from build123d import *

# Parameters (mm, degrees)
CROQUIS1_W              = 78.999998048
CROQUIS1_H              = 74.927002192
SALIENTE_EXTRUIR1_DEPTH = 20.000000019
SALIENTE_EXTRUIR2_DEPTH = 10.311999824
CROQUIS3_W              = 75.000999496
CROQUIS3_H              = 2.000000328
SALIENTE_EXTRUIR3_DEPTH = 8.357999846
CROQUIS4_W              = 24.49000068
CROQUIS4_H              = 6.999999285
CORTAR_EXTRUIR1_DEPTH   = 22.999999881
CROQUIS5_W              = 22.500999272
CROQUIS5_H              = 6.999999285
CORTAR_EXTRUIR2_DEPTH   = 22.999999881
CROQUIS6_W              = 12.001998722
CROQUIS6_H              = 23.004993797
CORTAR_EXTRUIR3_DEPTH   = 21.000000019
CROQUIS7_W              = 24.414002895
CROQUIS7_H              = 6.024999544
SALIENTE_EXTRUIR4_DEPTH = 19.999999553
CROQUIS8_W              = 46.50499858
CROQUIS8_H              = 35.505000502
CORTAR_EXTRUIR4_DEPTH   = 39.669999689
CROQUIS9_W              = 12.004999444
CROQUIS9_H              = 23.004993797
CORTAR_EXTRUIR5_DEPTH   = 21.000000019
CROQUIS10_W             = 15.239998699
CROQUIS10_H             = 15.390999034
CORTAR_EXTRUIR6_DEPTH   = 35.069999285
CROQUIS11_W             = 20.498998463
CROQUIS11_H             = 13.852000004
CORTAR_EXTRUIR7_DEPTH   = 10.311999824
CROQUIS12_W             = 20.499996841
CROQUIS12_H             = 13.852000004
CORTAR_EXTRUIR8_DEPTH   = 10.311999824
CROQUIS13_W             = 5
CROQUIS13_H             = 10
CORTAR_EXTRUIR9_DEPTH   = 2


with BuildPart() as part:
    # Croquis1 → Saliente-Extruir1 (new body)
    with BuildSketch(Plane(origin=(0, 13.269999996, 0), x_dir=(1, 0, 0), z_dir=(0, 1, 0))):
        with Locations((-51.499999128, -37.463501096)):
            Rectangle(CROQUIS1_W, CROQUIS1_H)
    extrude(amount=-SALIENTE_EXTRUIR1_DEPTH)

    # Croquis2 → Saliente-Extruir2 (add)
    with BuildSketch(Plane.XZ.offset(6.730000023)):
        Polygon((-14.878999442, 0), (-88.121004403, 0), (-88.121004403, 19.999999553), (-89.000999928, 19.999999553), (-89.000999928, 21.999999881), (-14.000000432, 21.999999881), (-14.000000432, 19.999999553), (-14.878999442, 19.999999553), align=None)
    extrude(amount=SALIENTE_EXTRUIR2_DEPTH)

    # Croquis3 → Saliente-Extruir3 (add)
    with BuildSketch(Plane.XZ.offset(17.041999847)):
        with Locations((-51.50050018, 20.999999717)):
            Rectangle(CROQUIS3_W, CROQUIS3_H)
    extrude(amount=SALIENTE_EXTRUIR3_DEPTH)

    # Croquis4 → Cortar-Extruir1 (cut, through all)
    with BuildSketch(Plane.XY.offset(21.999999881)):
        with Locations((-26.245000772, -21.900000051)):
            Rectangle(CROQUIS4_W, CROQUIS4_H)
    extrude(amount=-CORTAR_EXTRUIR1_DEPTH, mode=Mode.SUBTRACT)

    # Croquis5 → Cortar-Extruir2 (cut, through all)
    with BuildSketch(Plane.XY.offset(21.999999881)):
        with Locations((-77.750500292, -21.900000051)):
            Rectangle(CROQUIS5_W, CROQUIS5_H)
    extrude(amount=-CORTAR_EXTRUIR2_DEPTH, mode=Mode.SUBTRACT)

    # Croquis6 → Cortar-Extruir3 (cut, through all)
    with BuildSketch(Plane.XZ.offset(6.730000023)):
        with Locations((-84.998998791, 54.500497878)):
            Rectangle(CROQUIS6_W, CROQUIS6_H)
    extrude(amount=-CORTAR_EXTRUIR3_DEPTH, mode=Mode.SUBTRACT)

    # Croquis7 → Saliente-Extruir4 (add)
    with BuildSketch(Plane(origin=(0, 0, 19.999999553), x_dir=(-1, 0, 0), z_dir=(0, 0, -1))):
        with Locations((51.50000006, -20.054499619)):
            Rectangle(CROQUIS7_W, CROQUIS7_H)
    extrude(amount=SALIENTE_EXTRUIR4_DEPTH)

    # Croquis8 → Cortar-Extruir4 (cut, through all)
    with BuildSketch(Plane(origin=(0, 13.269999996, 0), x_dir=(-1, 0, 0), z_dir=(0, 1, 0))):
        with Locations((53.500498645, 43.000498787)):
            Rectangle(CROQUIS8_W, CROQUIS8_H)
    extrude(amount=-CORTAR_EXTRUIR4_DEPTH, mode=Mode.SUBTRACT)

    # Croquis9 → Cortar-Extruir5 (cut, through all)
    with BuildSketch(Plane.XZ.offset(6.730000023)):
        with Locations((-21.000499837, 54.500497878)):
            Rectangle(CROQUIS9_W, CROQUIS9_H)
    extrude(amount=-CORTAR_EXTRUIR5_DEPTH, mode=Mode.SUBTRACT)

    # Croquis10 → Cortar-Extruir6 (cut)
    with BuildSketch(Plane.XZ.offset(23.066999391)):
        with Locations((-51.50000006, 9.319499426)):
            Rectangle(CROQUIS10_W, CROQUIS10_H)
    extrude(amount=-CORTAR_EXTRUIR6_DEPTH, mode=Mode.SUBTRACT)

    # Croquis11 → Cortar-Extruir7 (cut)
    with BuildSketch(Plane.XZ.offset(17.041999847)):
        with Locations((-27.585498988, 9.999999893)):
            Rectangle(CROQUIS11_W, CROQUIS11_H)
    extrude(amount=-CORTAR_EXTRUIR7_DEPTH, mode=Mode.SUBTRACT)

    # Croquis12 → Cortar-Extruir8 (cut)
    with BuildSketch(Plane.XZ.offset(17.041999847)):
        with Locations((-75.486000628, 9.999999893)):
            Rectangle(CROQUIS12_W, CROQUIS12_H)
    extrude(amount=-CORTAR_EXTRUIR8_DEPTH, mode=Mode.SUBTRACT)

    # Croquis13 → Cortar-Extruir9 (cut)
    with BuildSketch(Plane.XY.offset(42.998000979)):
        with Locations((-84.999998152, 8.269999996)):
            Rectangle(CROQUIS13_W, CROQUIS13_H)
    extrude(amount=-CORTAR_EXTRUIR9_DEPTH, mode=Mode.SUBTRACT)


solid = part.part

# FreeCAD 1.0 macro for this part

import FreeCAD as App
import Part
import Sketcher

V = App.Vector


def add_polygon(sketch, points):
    """Adds a closed chain of lines whose ends are joined by coincident constraints."""
    first, n = sketch.GeometryCount, len(points)
    for a, b in zip(points, points[1:] + points[:1]):
        sketch.addGeometry(Part.LineSegment(App.Vector(*a, 0), App.Vector(*b, 0)), False)
    for i in range(n):
        sketch.addConstraint(Sketcher.Constraint("Coincident", first + i, 2, first + (i + 1) % n, 1))

doc = App.newDocument("Part")
body = doc.addObject("PartDesign::Body", "Body")

# Sketch on XZ plane
sketch1 = doc.addObject("Sketcher::SketchObject", "Sketch")
body.addObject(sketch1)
sketch1.AttachmentSupport = (doc.XZ_Plane, [""])
sketch1.MapMode = "FlatFace"
sketch1.AttachmentOffset = App.Placement(V(0, 0, -13.27), App.Rotation())
add_polygon(sketch1, [(-91, 0), (-91, 75), (-12, 75), (-12, 0)])  # lines 0-3
sketch1.addConstraint([
    Sketcher.Constraint("Vertical", 0),
    Sketcher.Constraint("Horizontal", 1),
    Sketcher.Constraint("Vertical", 2),
    Sketcher.Constraint("Horizontal", 3),
    Sketcher.Constraint("PointOnObject", 2, 2, -1),
    Sketcher.Constraint("DistanceX", 1, 1, 1, 2, 78.999998),
    Sketcher.Constraint("DistanceX", 0, 2, -1, 1, 90.999998),
    Sketcher.Constraint("DistanceY", 0, 1, 0, 2, 74.927002),
])
pad1 = doc.addObject("PartDesign::Pad", "Pad")
body.addObject(pad1)
pad1.Profile = sketch1
pad1.Length = 20

# Sketch on XZ plane
sketch2 = doc.addObject("Sketcher::SketchObject", "Sketch001")
body.addObject(sketch2)
sketch2.AttachmentSupport = (doc.XZ_Plane, [""])
sketch2.MapMode = "FlatFace"
sketch2.AttachmentOffset = App.Placement(V(0, 0, 6.73), App.Rotation())
add_polygon(sketch2, [(-88.1, 0), (-14.9, 0), (-14.9, 20), (-14, 20), (-14, 22), (-89, 22), (-89, 20), (-88.1, 20)])  # lines 0-7
sketch2.addConstraint([
    Sketcher.Constraint("Horizontal", 0),
    Sketcher.Constraint("Vertical", 1),
    Sketcher.Constraint("Horizontal", 2),
    Sketcher.Constraint("Vertical", 3),
    Sketcher.Constraint("Horizontal", 4),
    Sketcher.Constraint("Vertical", 5),
    Sketcher.Constraint("Horizontal", 6),
    Sketcher.Constraint("Vertical", 7),
    Sketcher.Constraint("PointOnObject", 0, 2, -1),
    Sketcher.Constraint("Horizontal", 2, 2, 5, 2),
    Sketcher.Constraint("DistanceY", 1, 1, 1, 2, 20.0),
    Sketcher.Constraint("DistanceY", 3, 1, 3, 2, 2.0),
    Sketcher.Constraint("DistanceX", 2, 2, -1, 1, 14.0),
    Sketcher.Constraint("DistanceX", 2, 1, 2, 2, 0.878999),
    Sketcher.Constraint("DistanceX", 4, 2, 4, 1, 75.000999),
    Sketcher.Constraint("DistanceX", 0, 1, 0, 2, 73.242005),
])
pad2 = doc.addObject("PartDesign::Pad", "Pad001")
body.addObject(pad2)
pad2.Profile = sketch2
pad2.Length = 10.312

# Sketch on XZ plane
sketch3 = doc.addObject("Sketcher::SketchObject", "Sketch002")
body.addObject(sketch3)
sketch3.AttachmentSupport = (doc.XZ_Plane, [""])
sketch3.MapMode = "FlatFace"
sketch3.AttachmentOffset = App.Placement(V(0, 0, 17.042), App.Rotation())
add_polygon(sketch3, [(-89, 22), (-89, 20), (-14, 20), (-14, 22)])  # lines 0-3
sketch3.addConstraint([
    Sketcher.Constraint("Vertical", 0),
    Sketcher.Constraint("Horizontal", 1),
    Sketcher.Constraint("Vertical", 2),
    Sketcher.Constraint("Horizontal", 3),
    Sketcher.Constraint("DistanceY", 0, 2, 0, 1, 2.0),
    Sketcher.Constraint("DistanceY", -1, 1, 0, 2, 20.0),
    Sketcher.Constraint("DistanceX", 1, 2, -1, 1, 14.0),
    Sketcher.Constraint("DistanceX", 1, 1, 1, 2, 75.000999),
])
pad3 = doc.addObject("PartDesign::Pad", "Pad002")
body.addObject(pad3)
pad3.Profile = sketch3
pad3.Length = 8.358

# Sketch on XY plane
sketch4 = doc.addObject("Sketcher::SketchObject", "Sketch003")
body.addObject(sketch4)
sketch4.AttachmentSupport = (doc.XY_Plane, [""])
sketch4.MapMode = "FlatFace"
sketch4.AttachmentOffset = App.Placement(V(0, 0, 22), App.Rotation())
add_polygon(sketch4, [(-38, -18), (-38, -25), (-14, -25), (-14, -18)])  # lines 0-3
sketch4.addConstraint([
    Sketcher.Constraint("Vertical", 0),
    Sketcher.Constraint("Horizontal", 1),
    Sketcher.Constraint("Vertical", 2),
    Sketcher.Constraint("Horizontal", 3),
    Sketcher.Constraint("DistanceY", 0, 2, 0, 1, 6.999999),
    Sketcher.Constraint("DistanceX", 1, 2, -1, 1, 14.0),
    Sketcher.Constraint("DistanceX", 1, 1, 1, 2, 24.490001),
    Sketcher.Constraint("DistanceY", 0, 2, -1, 1, 25.4),
])
pocket1 = doc.addObject("PartDesign::Pocket", "Pocket")
body.addObject(pocket1)
pocket1.Profile = sketch4
pocket1.Type = "ThroughAll"

# Sketch on XY plane
sketch5 = doc.addObject("Sketcher::SketchObject", "Sketch004")
body.addObject(sketch5)
sketch5.AttachmentSupport = (doc.XY_Plane, [""])
sketch5.MapMode = "FlatFace"
sketch5.AttachmentOffset = App.Placement(V(0, 0, 22), App.Rotation())
add_polygon(sketch5, [(-89, -18), (-89, -25), (-67, -25), (-67, -18)])  # lines 0-3
sketch5.addConstraint([
    Sketcher.Constraint("Vertical", 0),
    Sketcher.Constraint("Horizontal", 1),
    Sketcher.Constraint("Vertical", 2),
    Sketcher.Constraint("Horizontal", 3),
    Sketcher.Constraint("DistanceY", 0, 2, 0, 1, 6.999999),
    Sketcher.Constraint("DistanceY", 0, 2, -1, 1, 25.4),
    Sketcher.Constraint("DistanceX", 1, 2, -1, 1, 66.500001),
    Sketcher.Constraint("DistanceX", 1, 1, 1, 2, 22.500999),
])
pocket2 = doc.addObject("PartDesign::Pocket", "Pocket001")
body.addObject(pocket2)
pocket2.Profile = sketch5
pocket2.Type = "ThroughAll"

# Sketch on XZ plane
sketch6 = doc.addObject("Sketcher::SketchObject", "Sketch005")
body.addObject(sketch6)
sketch6.AttachmentSupport = (doc.XZ_Plane, [""])
sketch6.MapMode = "FlatFace"
sketch6.AttachmentOffset = App.Placement(V(0, 0, 6.73), App.Rotation())
add_polygon(sketch6, [(-91, 66), (-91, 43), (-79, 43), (-79, 66)])  # lines 0-3
sketch6.addConstraint([
    Sketcher.Constraint("Vertical", 0),
    Sketcher.Constraint("Horizontal", 1),
    Sketcher.Constraint("Vertical", 2),
    Sketcher.Constraint("Horizontal", 3),
    Sketcher.Constraint("DistanceX", 0, 2, -1, 1, 90.999998),
    Sketcher.Constraint("DistanceX", 1, 1, 1, 2, 12.001999),
    Sketcher.Constraint("DistanceY", -1, 1, 0, 2, 42.998001),
    Sketcher.Constraint("DistanceY", 0, 2, 0, 1, 23.004994),
])
pocket3 = doc.addObject("PartDesign::Pocket", "Pocket002")
body.addObject(pocket3)
pocket3.Profile = sketch6
pocket3.Type = "ThroughAll"

# Sketch on XY plane
sketch7 = doc.addObject("Sketcher::SketchObject", "Sketch006")
body.addObject(sketch7)
sketch7.AttachmentSupport = (doc.XY_Plane, [""])
sketch7.MapMode = "FlatFace"
sketch7.AttachmentOffset = App.Placement(V(0, 0, 20), App.Rotation())
add_polygon(sketch7, [(-39, -17), (-39, -23), (-64, -23), (-64, -17)])  # lines 0-3
sketch7.addConstraint([
    Sketcher.Constraint("Vertical", 0),
    Sketcher.Constraint("Horizontal", 1),
    Sketcher.Constraint("Vertical", 2),
    Sketcher.Constraint("Horizontal", 3),
    Sketcher.Constraint("DistanceY", 0, 2, 0, 1, 6.025),
    Sketcher.Constraint("DistanceX", 0, 2, -1, 1, 39.292999),
    Sketcher.Constraint("DistanceY", 0, 2, -1, 1, 23.066999),
    Sketcher.Constraint("DistanceX", 1, 2, -1, 1, 63.707002),
])
pad4 = doc.addObject("PartDesign::Pad", "Pad003")
body.addObject(pad4)
pad4.Profile = sketch7
pad4.Length = 20
pad4.Reversed = True

# Sketch on XZ plane
sketch8 = doc.addObject("Sketcher::SketchObject", "Sketch007")
body.addObject(sketch8)
sketch8.AttachmentSupport = (doc.XZ_Plane, [""])
sketch8.MapMode = "FlatFace"
sketch8.AttachmentOffset = App.Placement(V(0, 0, -13.27), App.Rotation())
add_polygon(sketch8, [(-30, 61), (-30, 25), (-77, 25), (-77, 61)])  # lines 0-3
sketch8.addConstraint([
    Sketcher.Constraint("Vertical", 0),
    Sketcher.Constraint("Horizontal", 1),
    Sketcher.Constraint("Vertical", 2),
    Sketcher.Constraint("Horizontal", 3),
    Sketcher.Constraint("DistanceX", 1, 2, 1, 1, 46.504999),
    Sketcher.Constraint("DistanceY", 0, 2, 0, 1, 35.505001),
    Sketcher.Constraint("DistanceX", 0, 2, -1, 1, 30.247999),
    Sketcher.Constraint("DistanceY", -1, 1, 0, 2, 25.247999),
])
pocket4 = doc.addObject("PartDesign::Pocket", "Pocket003")
body.addObject(pocket4)
pocket4.Profile = sketch8
pocket4.Type = "ThroughAll"
pocket4.Reversed = True

# Sketch on XZ plane
sketch9 = doc.addObject("Sketcher::SketchObject", "Sketch008")
body.addObject(sketch9)
sketch9.AttachmentSupport = (doc.XZ_Plane, [""])
sketch9.MapMode = "FlatFace"
sketch9.AttachmentOffset = App.Placement(V(0, 0, 6.73), App.Rotation())
add_polygon(sketch9, [(-27, 66), (-27, 43), (-15, 43), (-15, 66)])  # lines 0-3
sketch9.addConstraint([
    Sketcher.Constraint("Vertical", 0),
    Sketcher.Constraint("Horizontal", 1),
    Sketcher.Constraint("Vertical", 2),
    Sketcher.Constraint("Horizontal", 3),
    Sketcher.Constraint("DistanceX", 1, 1, 1, 2, 12.004999),
    Sketcher.Constraint("DistanceX", 0, 2, -1, 1, 27.003),
    Sketcher.Constraint("DistanceY", -1, 1, 0, 2, 42.998001),
    Sketcher.Constraint("DistanceY", 0, 2, 0, 1, 23.004994),
])
pocket5 = doc.addObject("PartDesign::Pocket", "Pocket004")
body.addObject(pocket5)
pocket5.Profile = sketch9
pocket5.Type = "ThroughAll"

# Sketch on XZ plane
sketch10 = doc.addObject("Sketcher::SketchObject", "Sketch009")
body.addObject(sketch10)
sketch10.AttachmentSupport = (doc.XZ_Plane, [""])
sketch10.MapMode = "FlatFace"
sketch10.AttachmentOffset = App.Placement(V(0, 0, 23.066999), App.Rotation())
add_polygon(sketch10, [(-59, 17), (-59, 2), (-44, 2), (-44, 17)])  # lines 0-3
sketch10.addConstraint([
    Sketcher.Constraint("Vertical", 0),
    Sketcher.Constraint("Horizontal", 1),
    Sketcher.Constraint("Vertical", 2),
    Sketcher.Constraint("Horizontal", 3),
    Sketcher.Constraint("DistanceX", 1, 1, 1, 2, 15.239999),
    Sketcher.Constraint("DistanceY", 0, 2, 0, 1, 15.390999),
    Sketcher.Constraint("DistanceX", 0, 2, -1, 1, 59.119999),
    Sketcher.Constraint("DistanceY", -1, 1, 0, 2, 1.624),
])
pocket6 = doc.addObject("PartDesign::Pocket", "Pocket005")
body.addObject(pocket6)
pocket6.Profile = sketch10
pocket6.Length = 35.069999

# Sketch on XZ plane
sketch11 = doc.addObject("Sketcher::SketchObject", "Sketch010")
body.addObject(sketch11)
sketch11.AttachmentSupport = (doc.XZ_Plane, [""])
sketch11.MapMode = "FlatFace"
sketch11.AttachmentOffset = App.Placement(V(0, 0, 17.042), App.Rotation())
add_polygon(sketch11, [(-38, 17), (-38, 3), (-17, 3), (-17, 17)])  # lines 0-3
sketch11.addConstraint([
    Sketcher.Constraint("Vertical", 0),
    Sketcher.Constraint("Horizontal", 1),
    Sketcher.Constraint("Vertical", 2),
    Sketcher.Constraint("Horizontal", 3),
    Sketcher.Constraint("DistanceX", 1, 1, 1, 2, 20.498998),
    Sketcher.Constraint("DistanceY", 0, 2, 0, 1, 13.852),
    Sketcher.Constraint("DistanceX", 0, 2, -1, 1, 37.834998),
    Sketcher.Constraint("DistanceY", -1, 1, 0, 2, 3.074),
])
pocket7 = doc.addObject("PartDesign::Pocket", "Pocket006")
body.addObject(pocket7)
pocket7.Profile = sketch11
pocket7.Length = 10.312

# Sketch on XZ plane
sketch12 = doc.addObject("Sketcher::SketchObject", "Sketch011")
body.addObject(sketch12)
sketch12.AttachmentSupport = (doc.XZ_Plane, [""])
sketch12.MapMode = "FlatFace"
sketch12.AttachmentOffset = App.Placement(V(0, 0, 17.042), App.Rotation())
add_polygon(sketch12, [(-86, 17), (-86, 3), (-65, 3), (-65, 17)])  # lines 0-3
sketch12.addConstraint([
    Sketcher.Constraint("Vertical", 0),
    Sketcher.Constraint("Horizontal", 1),
    Sketcher.Constraint("Vertical", 2),
    Sketcher.Constraint("Horizontal", 3),
    Sketcher.Constraint("DistanceY", 0, 2, 0, 1, 13.852),
    Sketcher.Constraint("DistanceX", 0, 2, -1, 1, 85.735999),
    Sketcher.Constraint("DistanceY", -1, 1, 0, 2, 3.074),
    Sketcher.Constraint("DistanceX", 1, 1, 1, 2, 20.499997),
])
pocket8 = doc.addObject("PartDesign::Pocket", "Pocket007")
body.addObject(pocket8)
pocket8.Profile = sketch12
pocket8.Length = 10.312

# Sketch on XY plane
sketch13 = doc.addObject("Sketcher::SketchObject", "Sketch012")
body.addObject(sketch13)
sketch13.AttachmentSupport = (doc.XY_Plane, [""])
sketch13.MapMode = "FlatFace"
sketch13.AttachmentOffset = App.Placement(V(0, 0, 42.998001), App.Rotation())
add_polygon(sketch13, [(-87, 13), (-87, 3), (-82, 3), (-82, 13)])  # lines 0-3
sketch13.addConstraint([
    Sketcher.Constraint("Vertical", 0),
    Sketcher.Constraint("Horizontal", 1),
    Sketcher.Constraint("Vertical", 2),
    Sketcher.Constraint("Horizontal", 3),
    Sketcher.Constraint("DistanceX", 1, 1, 1, 2, 5.0),
    Sketcher.Constraint("DistanceY", 0, 2, 0, 1, 10.0),
    Sketcher.Constraint("DistanceX", 0, 2, -1, 1, 87.499998),
    Sketcher.Constraint("DistanceY", -1, 1, 0, 2, 3.27),
])
pocket9 = doc.addObject("PartDesign::Pocket", "Pocket008")
body.addObject(pocket9)
pocket9.Profile = sketch13
pocket9.Length = 2

doc.recompute()
